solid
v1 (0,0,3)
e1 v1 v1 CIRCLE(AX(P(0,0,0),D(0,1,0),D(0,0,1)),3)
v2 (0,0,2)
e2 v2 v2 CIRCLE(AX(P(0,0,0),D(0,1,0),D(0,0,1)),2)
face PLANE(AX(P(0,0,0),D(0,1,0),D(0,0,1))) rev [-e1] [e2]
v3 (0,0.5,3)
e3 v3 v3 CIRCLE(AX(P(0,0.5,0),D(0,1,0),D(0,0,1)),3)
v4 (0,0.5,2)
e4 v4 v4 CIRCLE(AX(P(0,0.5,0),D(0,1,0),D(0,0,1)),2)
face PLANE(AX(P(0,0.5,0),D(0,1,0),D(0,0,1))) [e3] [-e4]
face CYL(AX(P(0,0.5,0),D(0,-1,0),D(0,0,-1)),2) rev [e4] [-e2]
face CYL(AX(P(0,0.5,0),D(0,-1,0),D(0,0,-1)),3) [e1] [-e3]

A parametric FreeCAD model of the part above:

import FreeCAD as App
import Part
import Sketcher

V = App.Vector

doc = App.newDocument("Part")
params = doc.addObject("Spreadsheet::Sheet", "Params")
for row, (alias, value) in enumerate([
    ("sketch1_diameter", "6 mm"),
    ("sketch1_diameter2", "4 mm"),
    ("pad1_length", "0.5 mm"),
], start=1):
    params.set(f"A{row}", alias)
    params.set(f"B{row}", "=" + value)
    params.setAlias(f"B{row}", alias)

body = doc.addObject("PartDesign::Body", "Body")

# Sketch on XZ plane
sketch1 = body.newObject("Sketcher::SketchObject", "Sketch")
sketch1.AttachmentSupport = (doc.getObject("XZ_Plane"), [""])
sketch1.MapMode = "FlatFace"
sketch1.addGeometry([
    Part.Circle(V(0, 0, 0), V(0, 0, 1), 3),
    Part.Circle(V(0, 0, 0), V(0, 0, 1), 2),
], False)
sketch1.addConstraint([
    Sketcher.Constraint("Coincident", 0, 3, -1, 1),
    Sketcher.Constraint("Coincident", 1, 3, -1, 1),
    Sketcher.Constraint("Diameter", 0, 6.0),
    Sketcher.Constraint("Diameter", 1, 4.0),
])
sketch1.setExpression("Constraints[2]", "Params.sketch1_diameter")
sketch1.setExpression("Constraints[3]", "Params.sketch1_diameter2")
pad1 = body.newObject("PartDesign::Pad", "Pad")
pad1.Profile = sketch1
pad1.setExpression("Length", "Params.pad1_length")
pad1.Reversed = True

doc.recompute()
